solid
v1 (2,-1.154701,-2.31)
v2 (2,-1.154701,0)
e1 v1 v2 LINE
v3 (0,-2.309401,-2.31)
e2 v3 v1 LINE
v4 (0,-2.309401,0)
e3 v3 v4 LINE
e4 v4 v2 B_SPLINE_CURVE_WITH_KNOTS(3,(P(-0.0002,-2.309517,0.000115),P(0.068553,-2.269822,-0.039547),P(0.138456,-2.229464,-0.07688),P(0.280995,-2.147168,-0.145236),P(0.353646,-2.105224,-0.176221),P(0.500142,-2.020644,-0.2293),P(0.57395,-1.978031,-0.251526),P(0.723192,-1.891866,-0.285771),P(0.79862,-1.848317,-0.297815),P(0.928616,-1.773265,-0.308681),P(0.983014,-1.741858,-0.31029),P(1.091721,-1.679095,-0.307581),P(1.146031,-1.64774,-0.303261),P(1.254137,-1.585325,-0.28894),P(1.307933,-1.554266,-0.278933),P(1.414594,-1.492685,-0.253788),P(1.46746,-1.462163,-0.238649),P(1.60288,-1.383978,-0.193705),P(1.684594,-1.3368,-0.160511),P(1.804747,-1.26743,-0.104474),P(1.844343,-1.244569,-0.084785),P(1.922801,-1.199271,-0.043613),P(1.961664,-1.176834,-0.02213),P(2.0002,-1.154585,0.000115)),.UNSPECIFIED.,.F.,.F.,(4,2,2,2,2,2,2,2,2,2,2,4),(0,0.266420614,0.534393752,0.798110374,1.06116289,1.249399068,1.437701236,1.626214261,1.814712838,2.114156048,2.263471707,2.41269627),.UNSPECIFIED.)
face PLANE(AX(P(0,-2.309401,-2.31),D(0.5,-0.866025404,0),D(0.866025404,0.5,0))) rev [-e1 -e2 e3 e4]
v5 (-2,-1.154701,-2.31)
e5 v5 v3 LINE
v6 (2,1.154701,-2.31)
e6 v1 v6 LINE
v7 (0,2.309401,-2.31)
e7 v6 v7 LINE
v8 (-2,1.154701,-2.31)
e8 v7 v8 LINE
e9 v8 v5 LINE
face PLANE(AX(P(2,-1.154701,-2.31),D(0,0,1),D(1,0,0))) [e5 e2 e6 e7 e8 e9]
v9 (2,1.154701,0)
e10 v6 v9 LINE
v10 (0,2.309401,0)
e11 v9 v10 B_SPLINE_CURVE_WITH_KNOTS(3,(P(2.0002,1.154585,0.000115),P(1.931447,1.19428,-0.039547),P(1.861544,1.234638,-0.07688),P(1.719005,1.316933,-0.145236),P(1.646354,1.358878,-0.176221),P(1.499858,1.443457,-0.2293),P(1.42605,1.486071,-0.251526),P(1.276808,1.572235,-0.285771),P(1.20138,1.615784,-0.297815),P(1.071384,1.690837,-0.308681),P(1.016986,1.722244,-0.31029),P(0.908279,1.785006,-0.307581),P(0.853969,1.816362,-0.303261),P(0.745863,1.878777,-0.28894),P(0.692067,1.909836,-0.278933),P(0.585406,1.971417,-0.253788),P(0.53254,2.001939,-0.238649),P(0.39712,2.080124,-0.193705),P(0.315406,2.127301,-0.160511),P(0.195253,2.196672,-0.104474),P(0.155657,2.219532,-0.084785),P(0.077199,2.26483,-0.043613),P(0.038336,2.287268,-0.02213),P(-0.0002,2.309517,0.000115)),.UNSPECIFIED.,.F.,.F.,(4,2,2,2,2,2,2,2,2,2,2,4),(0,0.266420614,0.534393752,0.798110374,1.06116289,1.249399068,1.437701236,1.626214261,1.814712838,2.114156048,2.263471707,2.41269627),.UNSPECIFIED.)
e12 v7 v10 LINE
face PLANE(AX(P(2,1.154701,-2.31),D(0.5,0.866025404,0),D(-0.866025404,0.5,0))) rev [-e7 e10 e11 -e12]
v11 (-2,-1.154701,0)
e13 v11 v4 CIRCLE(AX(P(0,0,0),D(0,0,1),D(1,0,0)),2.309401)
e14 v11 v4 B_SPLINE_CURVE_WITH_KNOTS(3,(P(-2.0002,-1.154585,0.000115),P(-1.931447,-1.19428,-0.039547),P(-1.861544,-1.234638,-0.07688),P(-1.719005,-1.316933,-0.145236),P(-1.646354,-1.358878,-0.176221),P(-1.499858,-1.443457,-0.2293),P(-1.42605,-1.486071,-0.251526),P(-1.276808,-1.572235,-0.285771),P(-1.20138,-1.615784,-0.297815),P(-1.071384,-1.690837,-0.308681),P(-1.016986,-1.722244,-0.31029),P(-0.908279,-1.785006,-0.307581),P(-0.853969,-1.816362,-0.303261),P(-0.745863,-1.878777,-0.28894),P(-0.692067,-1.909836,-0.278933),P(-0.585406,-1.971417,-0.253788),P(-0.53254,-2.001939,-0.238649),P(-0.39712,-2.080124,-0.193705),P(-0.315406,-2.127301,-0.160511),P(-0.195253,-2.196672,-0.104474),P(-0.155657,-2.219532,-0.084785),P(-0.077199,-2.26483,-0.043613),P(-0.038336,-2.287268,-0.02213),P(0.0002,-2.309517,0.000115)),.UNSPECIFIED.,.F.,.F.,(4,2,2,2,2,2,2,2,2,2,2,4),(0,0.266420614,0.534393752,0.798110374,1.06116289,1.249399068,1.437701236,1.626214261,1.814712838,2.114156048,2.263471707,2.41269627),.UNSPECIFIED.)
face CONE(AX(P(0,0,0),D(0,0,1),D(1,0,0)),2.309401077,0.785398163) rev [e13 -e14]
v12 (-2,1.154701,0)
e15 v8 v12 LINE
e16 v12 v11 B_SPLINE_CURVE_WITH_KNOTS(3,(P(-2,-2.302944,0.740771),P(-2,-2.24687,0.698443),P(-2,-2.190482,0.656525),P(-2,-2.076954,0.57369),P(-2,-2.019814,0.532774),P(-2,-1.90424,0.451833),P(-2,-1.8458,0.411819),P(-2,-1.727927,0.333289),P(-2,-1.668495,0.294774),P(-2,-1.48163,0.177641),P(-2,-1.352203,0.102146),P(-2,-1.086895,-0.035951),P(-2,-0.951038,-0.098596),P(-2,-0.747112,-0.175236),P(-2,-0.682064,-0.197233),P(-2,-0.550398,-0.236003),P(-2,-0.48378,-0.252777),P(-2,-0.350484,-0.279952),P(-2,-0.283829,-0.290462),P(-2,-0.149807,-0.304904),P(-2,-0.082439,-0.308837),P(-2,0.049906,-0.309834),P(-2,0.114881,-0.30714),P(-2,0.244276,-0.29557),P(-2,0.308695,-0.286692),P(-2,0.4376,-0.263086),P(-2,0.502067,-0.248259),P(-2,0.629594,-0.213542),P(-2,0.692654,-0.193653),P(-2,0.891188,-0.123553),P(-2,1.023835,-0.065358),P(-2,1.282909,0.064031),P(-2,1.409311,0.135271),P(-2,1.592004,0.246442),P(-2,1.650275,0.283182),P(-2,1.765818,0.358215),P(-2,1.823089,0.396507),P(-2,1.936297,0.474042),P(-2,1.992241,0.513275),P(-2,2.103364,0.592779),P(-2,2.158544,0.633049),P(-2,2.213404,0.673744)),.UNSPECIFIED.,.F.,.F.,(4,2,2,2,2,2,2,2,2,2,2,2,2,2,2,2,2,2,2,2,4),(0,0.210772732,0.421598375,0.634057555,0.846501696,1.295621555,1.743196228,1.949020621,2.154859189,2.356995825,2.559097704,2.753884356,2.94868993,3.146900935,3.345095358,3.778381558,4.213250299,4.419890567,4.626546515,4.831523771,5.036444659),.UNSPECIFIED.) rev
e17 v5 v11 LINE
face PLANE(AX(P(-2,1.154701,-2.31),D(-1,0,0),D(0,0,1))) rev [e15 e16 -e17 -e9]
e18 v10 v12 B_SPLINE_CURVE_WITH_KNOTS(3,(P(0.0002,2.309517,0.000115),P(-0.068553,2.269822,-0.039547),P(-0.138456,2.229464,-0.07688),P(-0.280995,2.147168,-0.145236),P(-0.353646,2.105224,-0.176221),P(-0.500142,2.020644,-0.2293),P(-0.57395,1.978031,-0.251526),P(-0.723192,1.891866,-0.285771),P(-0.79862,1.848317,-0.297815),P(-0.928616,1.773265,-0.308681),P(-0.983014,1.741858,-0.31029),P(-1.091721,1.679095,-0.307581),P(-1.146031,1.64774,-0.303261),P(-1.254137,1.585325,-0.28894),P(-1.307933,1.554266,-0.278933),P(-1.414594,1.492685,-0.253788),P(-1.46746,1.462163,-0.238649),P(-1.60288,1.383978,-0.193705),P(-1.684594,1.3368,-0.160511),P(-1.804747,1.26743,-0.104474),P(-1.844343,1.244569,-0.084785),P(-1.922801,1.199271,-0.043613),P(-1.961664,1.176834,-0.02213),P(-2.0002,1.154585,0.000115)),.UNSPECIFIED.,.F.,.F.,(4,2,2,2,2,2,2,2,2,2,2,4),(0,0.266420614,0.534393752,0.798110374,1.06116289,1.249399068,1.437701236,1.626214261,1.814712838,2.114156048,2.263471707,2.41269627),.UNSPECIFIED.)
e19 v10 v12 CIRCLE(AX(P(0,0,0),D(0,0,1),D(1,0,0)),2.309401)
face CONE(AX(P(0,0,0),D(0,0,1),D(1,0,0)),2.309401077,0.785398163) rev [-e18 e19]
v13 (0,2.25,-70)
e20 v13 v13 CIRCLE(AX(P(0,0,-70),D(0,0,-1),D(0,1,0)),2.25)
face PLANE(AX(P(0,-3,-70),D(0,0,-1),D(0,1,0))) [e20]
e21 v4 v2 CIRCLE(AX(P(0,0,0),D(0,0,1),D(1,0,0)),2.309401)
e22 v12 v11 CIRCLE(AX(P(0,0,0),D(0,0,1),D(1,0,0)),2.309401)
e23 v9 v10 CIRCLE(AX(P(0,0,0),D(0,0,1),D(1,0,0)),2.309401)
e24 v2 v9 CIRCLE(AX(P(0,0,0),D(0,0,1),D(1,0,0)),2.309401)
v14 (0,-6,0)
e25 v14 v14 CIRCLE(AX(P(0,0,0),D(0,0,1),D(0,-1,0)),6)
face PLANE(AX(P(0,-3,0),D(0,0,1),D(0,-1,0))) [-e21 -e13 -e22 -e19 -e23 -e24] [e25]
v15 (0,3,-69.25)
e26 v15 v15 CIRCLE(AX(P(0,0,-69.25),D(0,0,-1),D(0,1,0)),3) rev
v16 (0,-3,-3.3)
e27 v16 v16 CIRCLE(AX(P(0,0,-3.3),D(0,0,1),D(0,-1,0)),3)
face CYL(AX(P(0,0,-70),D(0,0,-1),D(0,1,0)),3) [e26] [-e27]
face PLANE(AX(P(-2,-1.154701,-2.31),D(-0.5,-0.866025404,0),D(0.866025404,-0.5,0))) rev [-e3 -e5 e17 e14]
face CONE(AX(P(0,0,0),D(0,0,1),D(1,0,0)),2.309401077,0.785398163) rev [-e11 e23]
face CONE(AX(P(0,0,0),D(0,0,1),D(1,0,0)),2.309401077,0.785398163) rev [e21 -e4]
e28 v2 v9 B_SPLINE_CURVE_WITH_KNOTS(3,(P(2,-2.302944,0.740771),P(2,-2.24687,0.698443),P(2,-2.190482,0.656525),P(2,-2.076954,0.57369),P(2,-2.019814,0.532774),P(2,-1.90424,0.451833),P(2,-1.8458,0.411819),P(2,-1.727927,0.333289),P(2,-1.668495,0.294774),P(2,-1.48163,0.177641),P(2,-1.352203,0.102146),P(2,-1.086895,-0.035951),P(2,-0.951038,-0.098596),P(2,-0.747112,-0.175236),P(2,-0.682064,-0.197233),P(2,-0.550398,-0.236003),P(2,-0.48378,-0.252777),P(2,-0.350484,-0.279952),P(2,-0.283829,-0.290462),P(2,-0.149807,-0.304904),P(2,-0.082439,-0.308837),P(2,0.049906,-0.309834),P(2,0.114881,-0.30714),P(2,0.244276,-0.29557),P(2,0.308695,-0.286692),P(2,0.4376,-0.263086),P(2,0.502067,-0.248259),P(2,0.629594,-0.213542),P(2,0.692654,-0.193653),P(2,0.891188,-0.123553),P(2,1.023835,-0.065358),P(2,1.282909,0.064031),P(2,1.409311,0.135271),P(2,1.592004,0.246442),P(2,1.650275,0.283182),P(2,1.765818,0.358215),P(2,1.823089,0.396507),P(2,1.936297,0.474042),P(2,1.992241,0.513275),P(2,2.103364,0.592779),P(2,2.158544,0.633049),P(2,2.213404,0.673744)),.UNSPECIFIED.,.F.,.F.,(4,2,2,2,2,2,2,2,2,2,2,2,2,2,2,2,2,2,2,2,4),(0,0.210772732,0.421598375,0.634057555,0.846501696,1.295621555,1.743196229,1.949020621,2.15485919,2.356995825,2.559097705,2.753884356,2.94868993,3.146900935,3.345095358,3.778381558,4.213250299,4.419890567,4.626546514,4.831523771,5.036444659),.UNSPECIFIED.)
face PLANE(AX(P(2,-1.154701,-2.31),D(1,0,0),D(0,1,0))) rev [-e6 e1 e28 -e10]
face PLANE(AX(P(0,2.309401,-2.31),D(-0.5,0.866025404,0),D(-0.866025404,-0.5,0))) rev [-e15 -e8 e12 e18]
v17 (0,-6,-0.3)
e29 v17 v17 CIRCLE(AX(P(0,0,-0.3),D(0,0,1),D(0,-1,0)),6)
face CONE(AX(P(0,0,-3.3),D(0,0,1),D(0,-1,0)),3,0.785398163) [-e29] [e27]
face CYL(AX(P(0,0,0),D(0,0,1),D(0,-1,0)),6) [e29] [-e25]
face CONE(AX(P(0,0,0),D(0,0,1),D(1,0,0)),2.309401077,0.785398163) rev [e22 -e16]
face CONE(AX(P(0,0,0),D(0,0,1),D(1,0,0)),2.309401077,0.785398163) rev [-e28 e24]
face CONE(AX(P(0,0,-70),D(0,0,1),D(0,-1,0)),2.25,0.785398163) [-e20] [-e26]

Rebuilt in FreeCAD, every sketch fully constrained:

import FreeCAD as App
import Part
import Sketcher
Q = App.Units.Quantity


def edges_at(feature, points):
    """Names of the edges that pass closest to the given points."""
    edges = feature.Shape.Edges
    near = lambda p: min(range(len(edges)), key=lambda i: edges[i].distToShape(Part.Vertex(*p))[0])
    return sorted({f"Edge{near(p) + 1}" for p in points})


def add_polygon(sketch, points):
    """Adds a closed chain of lines whose ends are joined by coincident constraints."""
    first, n = sketch.GeometryCount, len(points)
    for a, b in zip(points, points[1:] + points[:1]):
        sketch.addGeometry(Part.LineSegment(App.Vector(*a, 0), App.Vector(*b, 0)), False)
    for i in range(n):
        sketch.addConstraint(Sketcher.Constraint("Coincident", first + i, 2, first + (i + 1) % n, 1))

doc = App.newDocument("Part")
body = doc.addObject("PartDesign::Body", "Body")

# Sketch on YZ plane
sketch1 = body.newObject("Sketcher::SketchObject", "Sketch")
sketch1.AttachmentSupport = (doc.getObject("YZ_Plane"), [""])
sketch1.MapMode = "FlatFace"
add_polygon(sketch1, [(3, 0), (0, 0), (0, -70), (3, -70)])  # lines 0-3
sketch1.addConstraint(Sketcher.Constraint("Horizontal", 0))
sketch1.addConstraint(Sketcher.Constraint("Vertical", 1))
sketch1.addConstraint(Sketcher.Constraint("Horizontal", 2))
sketch1.addConstraint(Sketcher.Constraint("Vertical", 3))
sketch1.addConstraint(Sketcher.Constraint("Coincident", 0, 2, -1, 1))
sketch1.addConstraint(Sketcher.Constraint("DistanceX", 0, 2, 0, 1, Q("3 mm")))
sketch1.addConstraint(Sketcher.Constraint("DistanceY", 1, 2, 1, 1, Q("70 mm")))
revolution = body.newObject("PartDesign::Revolution", "Revolution")
revolution.Profile = sketch1
revolution.ReferenceAxis = (sketch1, ["V_Axis"])
revolution.Angle = 360
doc.recompute()

chamfer = body.newObject("PartDesign::Chamfer", "Chamfer")
chamfer.Base = (revolution, edges_at(revolution, [(0, -3, -70)]))
chamfer.Size = 0.75

# Sketch on YZ plane
sketch2 = body.newObject("Sketcher::SketchObject", "Sketch001")
sketch2.AttachmentSupport = (doc.getObject("YZ_Plane"), [""])
sketch2.MapMode = "FlatFace"
add_polygon(sketch2, [(6, -0.3), (6, 0), (0, 0), (0, -3.3), (3, -3.3)])  # lines 0-4
sketch2.addConstraint(Sketcher.Constraint("Vertical", 0))
sketch2.addConstraint(Sketcher.Constraint("Horizontal", 1))
sketch2.addConstraint(Sketcher.Constraint("Vertical", 2))
sketch2.addConstraint(Sketcher.Constraint("Horizontal", 3))
sketch2.addConstraint(Sketcher.Constraint("Coincident", 1, 2, -1, 1))
sketch2.addConstraint(Sketcher.Constraint("DistanceX", 1, 2, 1, 1, Q("6 mm")))
sketch2.addConstraint(Sketcher.Constraint("DistanceX", 3, 1, 3, 2, Q("3 mm")))
sketch2.addConstraint(Sketcher.Constraint("Angle", 4, Q("45 deg")))
sketch2.addConstraint(Sketcher.Constraint("DistanceY", 0, 1, 0, 2, Q("0.3 mm")))
revolution2 = body.newObject("PartDesign::Revolution", "Revolution001")
revolution2.Profile = sketch2
revolution2.ReferenceAxis = (sketch2, ["V_Axis"])
revolution2.Angle = 360

# Sketch on YZ plane
sketch3 = body.newObject("Sketcher::SketchObject", "Sketch002")
sketch3.AttachmentSupport = (doc.getObject("YZ_Plane"), [""])
sketch3.MapMode = "FlatFace"
add_polygon(sketch3, [(0, -3.3), (-3, -3.3), (0, -6.3)])  # lines 0-2
sketch3.addConstraint(Sketcher.Constraint("Horizontal", 0))
sketch3.addConstraint(Sketcher.Constraint("Vertical", 2))
sketch3.addConstraint(Sketcher.Constraint("PointOnObject", 1, 2, -2))
sketch3.addConstraint(Sketcher.Constraint("Equal", 0, 2))
sketch3.addConstraint(Sketcher.Constraint("DistanceX", 0, 2, 0, 1, Q("3 mm")))
sketch3.addConstraint(Sketcher.Constraint("DistanceY", 0, 2, -1, 1, Q("3.3 mm")))
revolution3 = body.newObject("PartDesign::Revolution", "Revolution002")
revolution3.Profile = sketch3
revolution3.ReferenceAxis = (sketch3, ["V_Axis"])
revolution3.Angle = 360

# Sketch on XY plane
sketch4 = body.newObject("Sketcher::SketchObject", "Sketch003")
sketch4.AttachmentSupport = (doc.getObject("XY_Plane"), [""])
sketch4.MapMode = "FlatFace"
add_polygon(sketch4, [(2, -1.2), (2, 1.2), (0, 2.3), (-2, 1.2), (-2, -1.2), (0, -2.3)])  # lines 0-5
sketch4.addConstraint(Sketcher.Constraint("Vertical", 0))
sketch4.addConstraint(Sketcher.Constraint("Vertical", 3))
sketch4.addConstraint(Sketcher.Constraint("Symmetric", 0, 2, 3, 2, -1, 1))
sketch4.addConstraint(Sketcher.Constraint("Symmetric", 1, 2, 4, 2, -1, 1))
sketch4.addConstraint(Sketcher.Constraint("PointOnObject", 1, 2, -2))
sketch4.addConstraint(Sketcher.Constraint("Parallel", 2, 5))
sketch4.addConstraint(Sketcher.Constraint("Horizontal", 0, 2, 2, 2))
sketch4.addConstraint(Sketcher.Constraint("Angle", 1, Q("150 deg")))
sketch4.addConstraint(Sketcher.Constraint("DistanceX", -1, 1, 0, 2, Q("2 mm")))
sketch4.addConstraint(Sketcher.Constraint("DistanceY", 0, 1, 0, 2, Q("2.309401 mm")))
pocket1 = body.newObject("PartDesign::Pocket", "Pocket")
pocket1.Profile = sketch4
pocket1.Length = 2.31

# Sketch on YZ plane
sketch5 = body.newObject("Sketcher::SketchObject", "Sketch004")
sketch5.AttachmentSupport = (doc.getObject("YZ_Plane"), [""])
sketch5.MapMode = "FlatFace"
add_polygon(sketch5, [(0, 0), (-2.3, 0), (0, -2.3)])  # lines 0-2
sketch5.addConstraint(Sketcher.Constraint("Horizontal", 0))
sketch5.addConstraint(Sketcher.Constraint("Vertical", 2))
sketch5.addConstraint(Sketcher.Constraint("Coincident", 2, 2, -1, 1))
sketch5.addConstraint(Sketcher.Constraint("Equal", 0, 2))
sketch5.addConstraint(Sketcher.Constraint("DistanceX", 0, 2, 0, 1, Q("2.309401 mm")))
groove = body.newObject("PartDesign::Groove", "Groove")
groove.Profile = sketch5
groove.ReferenceAxis = (sketch5, ["V_Axis"])
groove.Angle = 360

doc.recompute()
